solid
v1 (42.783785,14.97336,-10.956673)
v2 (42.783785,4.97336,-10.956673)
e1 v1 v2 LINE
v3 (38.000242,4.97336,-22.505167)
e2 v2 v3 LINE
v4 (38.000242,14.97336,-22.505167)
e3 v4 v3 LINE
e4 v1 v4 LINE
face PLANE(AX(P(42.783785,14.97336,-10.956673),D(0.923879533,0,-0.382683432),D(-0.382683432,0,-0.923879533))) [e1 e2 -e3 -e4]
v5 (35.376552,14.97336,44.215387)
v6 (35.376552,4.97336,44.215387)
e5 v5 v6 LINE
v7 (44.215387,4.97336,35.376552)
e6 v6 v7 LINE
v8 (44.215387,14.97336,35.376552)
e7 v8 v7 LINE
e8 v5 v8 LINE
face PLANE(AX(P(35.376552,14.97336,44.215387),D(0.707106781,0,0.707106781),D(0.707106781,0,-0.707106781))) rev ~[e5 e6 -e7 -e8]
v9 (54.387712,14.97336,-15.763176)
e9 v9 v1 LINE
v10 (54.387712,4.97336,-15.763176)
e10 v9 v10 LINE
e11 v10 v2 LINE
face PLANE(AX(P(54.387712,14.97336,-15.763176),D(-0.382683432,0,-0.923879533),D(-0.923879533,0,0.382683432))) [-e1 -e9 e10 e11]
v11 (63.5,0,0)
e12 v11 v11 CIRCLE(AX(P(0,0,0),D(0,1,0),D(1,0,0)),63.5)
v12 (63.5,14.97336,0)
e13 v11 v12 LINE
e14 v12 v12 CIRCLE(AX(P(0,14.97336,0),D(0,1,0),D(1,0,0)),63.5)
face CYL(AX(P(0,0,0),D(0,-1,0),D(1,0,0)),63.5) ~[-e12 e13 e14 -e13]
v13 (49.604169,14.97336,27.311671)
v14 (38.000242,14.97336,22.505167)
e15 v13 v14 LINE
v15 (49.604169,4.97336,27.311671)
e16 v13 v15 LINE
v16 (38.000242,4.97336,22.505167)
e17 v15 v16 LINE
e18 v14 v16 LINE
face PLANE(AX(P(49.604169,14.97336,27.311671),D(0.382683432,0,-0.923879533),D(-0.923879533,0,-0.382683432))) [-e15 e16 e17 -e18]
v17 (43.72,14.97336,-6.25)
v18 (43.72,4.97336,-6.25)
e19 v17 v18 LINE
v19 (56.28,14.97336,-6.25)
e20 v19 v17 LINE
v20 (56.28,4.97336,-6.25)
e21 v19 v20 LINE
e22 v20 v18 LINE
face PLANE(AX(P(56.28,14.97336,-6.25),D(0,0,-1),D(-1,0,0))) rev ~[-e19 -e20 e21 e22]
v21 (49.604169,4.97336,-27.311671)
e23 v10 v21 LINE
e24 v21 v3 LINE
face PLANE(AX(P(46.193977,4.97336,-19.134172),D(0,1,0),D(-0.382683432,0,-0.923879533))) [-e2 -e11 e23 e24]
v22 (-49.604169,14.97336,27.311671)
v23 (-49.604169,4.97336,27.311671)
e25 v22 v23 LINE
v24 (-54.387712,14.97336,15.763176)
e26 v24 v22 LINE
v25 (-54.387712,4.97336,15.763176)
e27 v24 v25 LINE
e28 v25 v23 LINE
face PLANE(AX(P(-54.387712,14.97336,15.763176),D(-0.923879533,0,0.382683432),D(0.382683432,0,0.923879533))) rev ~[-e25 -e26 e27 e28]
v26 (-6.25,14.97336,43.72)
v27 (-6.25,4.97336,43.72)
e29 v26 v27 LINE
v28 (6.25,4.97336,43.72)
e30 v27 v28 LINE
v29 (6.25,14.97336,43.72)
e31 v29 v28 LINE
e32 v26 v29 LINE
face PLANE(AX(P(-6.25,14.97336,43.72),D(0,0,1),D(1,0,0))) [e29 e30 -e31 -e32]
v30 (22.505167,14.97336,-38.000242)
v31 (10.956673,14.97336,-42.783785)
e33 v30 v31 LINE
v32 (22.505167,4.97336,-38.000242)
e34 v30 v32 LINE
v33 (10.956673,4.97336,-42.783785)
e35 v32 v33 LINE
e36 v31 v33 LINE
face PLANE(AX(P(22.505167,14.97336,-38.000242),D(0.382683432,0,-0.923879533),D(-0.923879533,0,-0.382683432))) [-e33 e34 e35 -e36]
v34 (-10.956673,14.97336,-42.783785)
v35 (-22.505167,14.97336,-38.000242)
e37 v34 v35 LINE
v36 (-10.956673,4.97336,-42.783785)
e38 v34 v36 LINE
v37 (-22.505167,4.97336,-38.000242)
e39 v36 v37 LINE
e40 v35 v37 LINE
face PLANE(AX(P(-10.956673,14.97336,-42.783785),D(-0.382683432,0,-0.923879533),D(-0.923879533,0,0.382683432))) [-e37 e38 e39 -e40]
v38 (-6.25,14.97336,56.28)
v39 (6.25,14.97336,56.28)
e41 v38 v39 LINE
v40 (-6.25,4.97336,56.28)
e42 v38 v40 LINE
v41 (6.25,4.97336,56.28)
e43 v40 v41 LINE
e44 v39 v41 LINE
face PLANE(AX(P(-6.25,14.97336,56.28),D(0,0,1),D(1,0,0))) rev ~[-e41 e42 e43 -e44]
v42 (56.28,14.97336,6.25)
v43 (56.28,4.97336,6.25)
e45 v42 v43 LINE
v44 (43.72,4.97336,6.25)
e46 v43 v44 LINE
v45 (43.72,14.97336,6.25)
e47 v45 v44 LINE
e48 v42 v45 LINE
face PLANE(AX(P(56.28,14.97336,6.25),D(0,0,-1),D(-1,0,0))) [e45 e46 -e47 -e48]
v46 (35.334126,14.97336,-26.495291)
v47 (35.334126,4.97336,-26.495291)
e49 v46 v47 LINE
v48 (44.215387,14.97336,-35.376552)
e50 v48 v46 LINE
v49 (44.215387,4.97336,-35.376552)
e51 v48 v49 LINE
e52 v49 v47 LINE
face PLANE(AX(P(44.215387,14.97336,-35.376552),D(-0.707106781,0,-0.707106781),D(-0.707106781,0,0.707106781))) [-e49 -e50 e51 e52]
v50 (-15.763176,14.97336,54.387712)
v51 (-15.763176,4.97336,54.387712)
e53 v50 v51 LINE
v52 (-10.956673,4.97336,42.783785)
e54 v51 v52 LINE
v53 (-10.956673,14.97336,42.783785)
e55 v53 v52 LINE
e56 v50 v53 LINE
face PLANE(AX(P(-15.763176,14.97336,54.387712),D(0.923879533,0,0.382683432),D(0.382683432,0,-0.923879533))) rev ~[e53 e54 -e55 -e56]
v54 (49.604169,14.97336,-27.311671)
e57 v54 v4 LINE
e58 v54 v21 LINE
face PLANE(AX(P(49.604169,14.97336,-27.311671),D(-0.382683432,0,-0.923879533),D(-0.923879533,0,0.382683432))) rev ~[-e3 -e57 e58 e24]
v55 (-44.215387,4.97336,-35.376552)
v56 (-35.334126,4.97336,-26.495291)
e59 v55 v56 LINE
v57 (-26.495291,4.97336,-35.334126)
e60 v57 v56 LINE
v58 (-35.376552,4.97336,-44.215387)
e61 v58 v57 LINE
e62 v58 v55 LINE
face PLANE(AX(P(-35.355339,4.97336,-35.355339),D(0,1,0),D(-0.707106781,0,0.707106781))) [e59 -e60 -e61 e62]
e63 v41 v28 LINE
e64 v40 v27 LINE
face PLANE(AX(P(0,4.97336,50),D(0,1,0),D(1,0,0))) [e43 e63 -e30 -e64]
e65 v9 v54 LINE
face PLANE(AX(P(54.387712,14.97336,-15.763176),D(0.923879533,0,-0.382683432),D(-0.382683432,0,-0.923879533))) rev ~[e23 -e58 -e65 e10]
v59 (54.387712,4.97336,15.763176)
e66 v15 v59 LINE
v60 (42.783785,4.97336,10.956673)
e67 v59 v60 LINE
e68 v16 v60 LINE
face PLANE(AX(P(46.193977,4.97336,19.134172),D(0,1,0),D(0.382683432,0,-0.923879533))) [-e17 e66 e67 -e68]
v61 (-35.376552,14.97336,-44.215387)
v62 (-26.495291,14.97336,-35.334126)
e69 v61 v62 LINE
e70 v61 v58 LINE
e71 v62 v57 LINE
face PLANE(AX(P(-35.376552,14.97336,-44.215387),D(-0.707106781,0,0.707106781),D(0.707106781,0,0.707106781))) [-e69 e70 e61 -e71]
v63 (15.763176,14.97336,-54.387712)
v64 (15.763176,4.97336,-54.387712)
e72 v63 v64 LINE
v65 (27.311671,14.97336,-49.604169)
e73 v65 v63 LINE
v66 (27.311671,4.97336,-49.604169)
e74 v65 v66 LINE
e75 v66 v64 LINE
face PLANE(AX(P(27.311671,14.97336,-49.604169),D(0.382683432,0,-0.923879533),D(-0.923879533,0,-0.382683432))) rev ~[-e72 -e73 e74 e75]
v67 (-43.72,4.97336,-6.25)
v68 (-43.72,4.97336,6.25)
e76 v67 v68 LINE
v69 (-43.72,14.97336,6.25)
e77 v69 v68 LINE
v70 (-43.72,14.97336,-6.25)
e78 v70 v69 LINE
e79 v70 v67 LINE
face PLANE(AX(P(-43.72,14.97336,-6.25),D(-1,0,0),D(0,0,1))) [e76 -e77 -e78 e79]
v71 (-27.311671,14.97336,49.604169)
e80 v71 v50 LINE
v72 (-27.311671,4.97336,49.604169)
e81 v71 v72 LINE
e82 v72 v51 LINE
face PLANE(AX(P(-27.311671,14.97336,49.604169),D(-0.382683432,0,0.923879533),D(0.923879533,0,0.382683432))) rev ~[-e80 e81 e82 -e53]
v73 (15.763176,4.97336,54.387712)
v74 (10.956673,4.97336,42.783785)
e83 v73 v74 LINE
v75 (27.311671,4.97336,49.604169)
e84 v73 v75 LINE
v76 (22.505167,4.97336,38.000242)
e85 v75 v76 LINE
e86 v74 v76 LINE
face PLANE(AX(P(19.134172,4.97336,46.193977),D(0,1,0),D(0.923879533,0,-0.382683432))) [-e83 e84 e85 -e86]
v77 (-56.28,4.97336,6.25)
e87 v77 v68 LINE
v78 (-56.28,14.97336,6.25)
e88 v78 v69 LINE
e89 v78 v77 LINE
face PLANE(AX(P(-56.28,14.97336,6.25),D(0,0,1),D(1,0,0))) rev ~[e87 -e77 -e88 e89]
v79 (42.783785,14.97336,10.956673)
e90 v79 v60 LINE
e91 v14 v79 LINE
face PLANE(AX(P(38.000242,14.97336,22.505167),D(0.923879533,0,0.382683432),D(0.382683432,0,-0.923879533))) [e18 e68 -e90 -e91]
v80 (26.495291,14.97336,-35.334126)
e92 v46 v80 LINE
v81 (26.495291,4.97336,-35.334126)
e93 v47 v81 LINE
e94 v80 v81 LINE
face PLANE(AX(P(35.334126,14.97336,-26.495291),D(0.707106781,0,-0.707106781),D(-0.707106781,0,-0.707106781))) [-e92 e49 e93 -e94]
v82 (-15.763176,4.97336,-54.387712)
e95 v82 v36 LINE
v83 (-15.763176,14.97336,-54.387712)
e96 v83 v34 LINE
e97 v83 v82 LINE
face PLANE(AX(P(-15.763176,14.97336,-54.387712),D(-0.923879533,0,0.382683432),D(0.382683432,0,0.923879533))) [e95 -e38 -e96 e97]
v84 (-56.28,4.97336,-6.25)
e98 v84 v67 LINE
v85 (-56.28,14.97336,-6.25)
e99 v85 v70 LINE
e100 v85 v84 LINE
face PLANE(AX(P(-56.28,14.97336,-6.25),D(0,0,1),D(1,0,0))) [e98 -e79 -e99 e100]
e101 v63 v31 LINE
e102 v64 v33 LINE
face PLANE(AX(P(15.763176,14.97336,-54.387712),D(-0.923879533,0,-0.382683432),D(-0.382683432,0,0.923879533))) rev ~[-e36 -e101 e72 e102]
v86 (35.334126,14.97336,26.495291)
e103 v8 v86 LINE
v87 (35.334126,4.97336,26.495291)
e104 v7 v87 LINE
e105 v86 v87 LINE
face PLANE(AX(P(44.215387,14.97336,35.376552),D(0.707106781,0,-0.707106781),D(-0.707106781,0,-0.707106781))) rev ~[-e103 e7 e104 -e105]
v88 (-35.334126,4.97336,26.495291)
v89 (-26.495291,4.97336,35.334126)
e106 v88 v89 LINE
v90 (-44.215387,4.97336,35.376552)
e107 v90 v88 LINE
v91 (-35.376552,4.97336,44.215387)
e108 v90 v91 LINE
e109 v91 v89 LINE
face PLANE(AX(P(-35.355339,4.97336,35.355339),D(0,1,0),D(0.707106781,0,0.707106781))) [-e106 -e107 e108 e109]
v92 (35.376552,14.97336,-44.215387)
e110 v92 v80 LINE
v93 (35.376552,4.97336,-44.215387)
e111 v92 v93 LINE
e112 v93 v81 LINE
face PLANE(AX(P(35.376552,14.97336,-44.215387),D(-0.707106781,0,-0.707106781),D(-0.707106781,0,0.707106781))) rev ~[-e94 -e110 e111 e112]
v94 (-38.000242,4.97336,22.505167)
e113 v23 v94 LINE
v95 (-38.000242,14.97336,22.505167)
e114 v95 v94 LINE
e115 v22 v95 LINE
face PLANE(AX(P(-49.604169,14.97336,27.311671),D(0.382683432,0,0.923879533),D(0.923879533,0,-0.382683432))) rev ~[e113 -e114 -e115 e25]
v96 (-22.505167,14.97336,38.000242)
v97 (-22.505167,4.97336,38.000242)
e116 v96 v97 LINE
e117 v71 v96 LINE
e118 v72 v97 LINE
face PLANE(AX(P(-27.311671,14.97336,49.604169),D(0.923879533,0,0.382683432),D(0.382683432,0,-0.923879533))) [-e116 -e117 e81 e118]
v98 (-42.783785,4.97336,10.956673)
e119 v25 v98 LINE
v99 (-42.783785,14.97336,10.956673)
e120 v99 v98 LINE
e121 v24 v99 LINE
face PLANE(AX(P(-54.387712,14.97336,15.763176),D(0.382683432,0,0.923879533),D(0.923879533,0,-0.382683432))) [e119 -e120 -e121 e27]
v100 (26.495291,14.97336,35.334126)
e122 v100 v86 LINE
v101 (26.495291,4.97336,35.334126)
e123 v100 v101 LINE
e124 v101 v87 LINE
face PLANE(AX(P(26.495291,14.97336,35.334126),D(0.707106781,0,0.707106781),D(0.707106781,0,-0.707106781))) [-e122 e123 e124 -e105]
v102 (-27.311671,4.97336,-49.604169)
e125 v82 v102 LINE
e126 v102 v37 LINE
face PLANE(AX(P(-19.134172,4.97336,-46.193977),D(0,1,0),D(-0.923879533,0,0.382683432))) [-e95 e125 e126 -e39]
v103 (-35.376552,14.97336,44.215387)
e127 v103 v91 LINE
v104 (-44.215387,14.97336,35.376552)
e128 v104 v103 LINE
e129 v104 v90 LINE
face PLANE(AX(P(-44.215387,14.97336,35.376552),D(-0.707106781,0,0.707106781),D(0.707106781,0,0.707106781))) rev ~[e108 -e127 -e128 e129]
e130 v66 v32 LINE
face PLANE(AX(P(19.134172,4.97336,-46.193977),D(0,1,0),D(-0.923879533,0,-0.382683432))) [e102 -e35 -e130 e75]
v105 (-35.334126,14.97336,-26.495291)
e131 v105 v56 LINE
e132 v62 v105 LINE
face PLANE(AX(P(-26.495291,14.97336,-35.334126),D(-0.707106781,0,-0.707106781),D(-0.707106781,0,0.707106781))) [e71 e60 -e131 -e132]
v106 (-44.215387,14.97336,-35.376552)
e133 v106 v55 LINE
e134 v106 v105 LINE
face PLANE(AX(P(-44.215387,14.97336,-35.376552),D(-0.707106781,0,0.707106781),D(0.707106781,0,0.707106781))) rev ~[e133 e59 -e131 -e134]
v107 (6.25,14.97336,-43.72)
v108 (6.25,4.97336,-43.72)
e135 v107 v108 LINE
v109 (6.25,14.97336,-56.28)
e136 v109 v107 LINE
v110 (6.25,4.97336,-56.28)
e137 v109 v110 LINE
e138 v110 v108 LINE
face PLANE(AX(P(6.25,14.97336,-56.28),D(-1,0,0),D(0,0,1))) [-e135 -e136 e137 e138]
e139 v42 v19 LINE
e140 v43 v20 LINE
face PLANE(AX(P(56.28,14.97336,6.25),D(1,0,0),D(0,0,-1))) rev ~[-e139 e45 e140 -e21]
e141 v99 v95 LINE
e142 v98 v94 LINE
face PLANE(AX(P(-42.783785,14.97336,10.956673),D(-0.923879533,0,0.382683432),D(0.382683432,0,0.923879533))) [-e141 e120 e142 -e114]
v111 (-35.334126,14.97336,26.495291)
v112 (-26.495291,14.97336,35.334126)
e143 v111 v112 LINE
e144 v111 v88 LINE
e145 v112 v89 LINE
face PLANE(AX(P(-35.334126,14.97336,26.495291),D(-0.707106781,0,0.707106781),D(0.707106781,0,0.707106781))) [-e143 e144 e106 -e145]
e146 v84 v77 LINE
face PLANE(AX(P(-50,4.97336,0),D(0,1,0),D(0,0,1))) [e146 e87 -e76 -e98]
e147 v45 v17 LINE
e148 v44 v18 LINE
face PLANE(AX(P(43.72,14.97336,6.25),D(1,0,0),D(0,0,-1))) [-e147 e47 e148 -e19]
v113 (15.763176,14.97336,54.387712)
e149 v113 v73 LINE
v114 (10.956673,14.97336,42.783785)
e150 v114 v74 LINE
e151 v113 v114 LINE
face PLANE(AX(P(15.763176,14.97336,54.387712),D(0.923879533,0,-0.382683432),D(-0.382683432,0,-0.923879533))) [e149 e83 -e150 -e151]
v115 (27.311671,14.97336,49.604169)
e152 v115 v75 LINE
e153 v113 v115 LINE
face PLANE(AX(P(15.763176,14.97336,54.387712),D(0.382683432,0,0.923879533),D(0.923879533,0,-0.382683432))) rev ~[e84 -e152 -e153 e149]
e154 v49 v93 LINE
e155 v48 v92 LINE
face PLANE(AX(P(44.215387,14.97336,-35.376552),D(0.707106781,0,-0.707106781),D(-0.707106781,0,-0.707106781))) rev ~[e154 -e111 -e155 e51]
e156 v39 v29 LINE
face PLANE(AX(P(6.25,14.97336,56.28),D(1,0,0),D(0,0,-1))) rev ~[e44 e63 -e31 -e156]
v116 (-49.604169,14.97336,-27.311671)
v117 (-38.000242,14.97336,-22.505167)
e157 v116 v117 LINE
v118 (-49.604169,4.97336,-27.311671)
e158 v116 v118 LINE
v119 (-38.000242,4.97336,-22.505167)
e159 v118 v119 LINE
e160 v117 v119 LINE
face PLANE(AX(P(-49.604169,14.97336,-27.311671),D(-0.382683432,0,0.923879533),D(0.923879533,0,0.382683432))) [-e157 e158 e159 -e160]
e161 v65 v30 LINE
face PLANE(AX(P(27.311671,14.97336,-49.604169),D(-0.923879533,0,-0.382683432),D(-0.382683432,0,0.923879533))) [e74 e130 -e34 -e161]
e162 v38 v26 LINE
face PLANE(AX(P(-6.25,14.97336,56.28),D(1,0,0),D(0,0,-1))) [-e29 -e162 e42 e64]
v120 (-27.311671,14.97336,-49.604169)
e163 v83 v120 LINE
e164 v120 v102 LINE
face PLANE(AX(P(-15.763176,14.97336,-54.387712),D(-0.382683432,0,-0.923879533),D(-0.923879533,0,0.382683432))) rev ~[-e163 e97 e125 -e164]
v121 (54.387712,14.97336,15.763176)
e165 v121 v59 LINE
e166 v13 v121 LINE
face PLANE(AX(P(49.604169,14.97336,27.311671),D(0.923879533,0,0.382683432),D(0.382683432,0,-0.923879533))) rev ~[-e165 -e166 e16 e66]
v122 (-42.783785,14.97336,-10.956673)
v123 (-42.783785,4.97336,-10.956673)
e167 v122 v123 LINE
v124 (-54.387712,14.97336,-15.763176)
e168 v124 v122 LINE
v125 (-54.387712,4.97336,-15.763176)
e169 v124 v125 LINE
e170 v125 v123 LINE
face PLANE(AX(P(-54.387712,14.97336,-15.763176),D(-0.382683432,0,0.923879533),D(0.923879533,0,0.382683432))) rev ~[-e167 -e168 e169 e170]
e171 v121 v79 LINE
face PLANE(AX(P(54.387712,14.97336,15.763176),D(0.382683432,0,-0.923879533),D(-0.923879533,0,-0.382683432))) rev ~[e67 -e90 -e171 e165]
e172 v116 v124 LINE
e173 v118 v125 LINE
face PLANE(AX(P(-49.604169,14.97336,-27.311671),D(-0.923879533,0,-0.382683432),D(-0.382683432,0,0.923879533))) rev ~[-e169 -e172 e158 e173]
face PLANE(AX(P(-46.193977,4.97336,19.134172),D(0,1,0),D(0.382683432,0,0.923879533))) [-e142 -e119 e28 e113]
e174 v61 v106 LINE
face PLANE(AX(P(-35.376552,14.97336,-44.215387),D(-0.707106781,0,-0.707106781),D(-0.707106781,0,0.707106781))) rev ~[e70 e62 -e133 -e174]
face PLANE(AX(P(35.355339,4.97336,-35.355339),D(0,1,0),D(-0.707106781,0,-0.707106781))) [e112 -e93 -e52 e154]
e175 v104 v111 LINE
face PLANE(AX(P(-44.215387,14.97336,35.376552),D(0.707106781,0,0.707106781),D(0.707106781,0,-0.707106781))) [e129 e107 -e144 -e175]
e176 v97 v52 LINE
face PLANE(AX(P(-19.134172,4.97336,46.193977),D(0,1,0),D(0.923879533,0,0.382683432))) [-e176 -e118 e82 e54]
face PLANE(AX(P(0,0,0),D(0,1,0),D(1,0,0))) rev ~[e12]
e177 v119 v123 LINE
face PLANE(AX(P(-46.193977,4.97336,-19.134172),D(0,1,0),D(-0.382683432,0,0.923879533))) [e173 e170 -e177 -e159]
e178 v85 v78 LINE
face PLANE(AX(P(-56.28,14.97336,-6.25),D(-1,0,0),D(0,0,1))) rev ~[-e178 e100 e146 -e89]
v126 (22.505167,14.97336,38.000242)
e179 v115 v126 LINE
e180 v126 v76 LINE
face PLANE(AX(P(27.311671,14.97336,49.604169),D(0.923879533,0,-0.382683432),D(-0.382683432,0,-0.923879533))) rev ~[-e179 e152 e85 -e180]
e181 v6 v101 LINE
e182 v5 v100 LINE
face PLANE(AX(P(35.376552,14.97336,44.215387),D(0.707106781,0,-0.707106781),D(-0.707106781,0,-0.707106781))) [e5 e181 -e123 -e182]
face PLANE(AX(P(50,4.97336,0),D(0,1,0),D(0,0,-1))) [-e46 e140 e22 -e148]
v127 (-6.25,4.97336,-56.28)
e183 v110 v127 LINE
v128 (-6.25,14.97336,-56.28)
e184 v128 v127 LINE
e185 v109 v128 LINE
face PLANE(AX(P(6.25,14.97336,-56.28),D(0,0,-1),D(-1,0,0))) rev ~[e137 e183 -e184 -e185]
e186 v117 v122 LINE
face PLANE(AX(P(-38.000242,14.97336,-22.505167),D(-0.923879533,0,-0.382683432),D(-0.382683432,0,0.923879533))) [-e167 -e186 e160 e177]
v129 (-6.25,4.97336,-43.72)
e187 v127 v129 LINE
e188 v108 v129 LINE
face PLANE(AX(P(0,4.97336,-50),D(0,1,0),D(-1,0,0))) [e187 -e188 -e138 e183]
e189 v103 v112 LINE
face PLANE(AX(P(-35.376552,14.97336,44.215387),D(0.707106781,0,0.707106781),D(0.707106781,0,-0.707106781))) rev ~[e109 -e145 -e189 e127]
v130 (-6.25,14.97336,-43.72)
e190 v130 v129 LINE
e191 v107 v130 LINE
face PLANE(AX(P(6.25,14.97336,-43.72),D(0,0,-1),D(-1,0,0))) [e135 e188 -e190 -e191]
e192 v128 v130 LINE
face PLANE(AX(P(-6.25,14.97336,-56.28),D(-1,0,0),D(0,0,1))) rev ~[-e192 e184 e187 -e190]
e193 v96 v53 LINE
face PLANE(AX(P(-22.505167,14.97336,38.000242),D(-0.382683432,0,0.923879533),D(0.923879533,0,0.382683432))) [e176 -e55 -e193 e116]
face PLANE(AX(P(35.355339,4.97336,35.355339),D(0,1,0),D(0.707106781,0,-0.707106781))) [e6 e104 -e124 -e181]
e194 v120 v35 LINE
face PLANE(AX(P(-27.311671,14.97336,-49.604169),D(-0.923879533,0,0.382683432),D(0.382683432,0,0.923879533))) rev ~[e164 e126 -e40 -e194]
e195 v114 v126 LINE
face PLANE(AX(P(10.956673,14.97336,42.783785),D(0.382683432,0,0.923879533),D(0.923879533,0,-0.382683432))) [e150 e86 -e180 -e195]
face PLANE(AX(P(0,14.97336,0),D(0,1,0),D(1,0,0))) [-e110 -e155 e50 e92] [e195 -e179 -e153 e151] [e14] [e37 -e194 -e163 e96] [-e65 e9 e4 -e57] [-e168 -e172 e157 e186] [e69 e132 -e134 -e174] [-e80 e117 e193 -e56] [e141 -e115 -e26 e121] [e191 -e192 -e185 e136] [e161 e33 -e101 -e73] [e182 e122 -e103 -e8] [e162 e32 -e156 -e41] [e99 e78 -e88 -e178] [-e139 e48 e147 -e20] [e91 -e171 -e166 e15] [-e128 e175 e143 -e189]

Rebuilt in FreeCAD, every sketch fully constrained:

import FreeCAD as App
import Part
import Sketcher


def add_polygon(sketch, points):
    """Adds a closed chain of lines whose ends are joined by coincident constraints."""
    first, n = sketch.GeometryCount, len(points)
    for a, b in zip(points, points[1:] + points[:1]):
        sketch.addGeometry(Part.LineSegment(App.Vector(*a, 0), App.Vector(*b, 0)), False)
    for i in range(n):
        sketch.addConstraint(Sketcher.Constraint("Coincident", first + i, 2, first + (i + 1) % n, 1))

doc = App.newDocument("Part")
body = doc.addObject("PartDesign::Body", "Body")

# Sketch on XZ plane
sketch1 = body.newObject("Sketcher::SketchObject", "Sketch")
sketch1.AttachmentSupport = (doc.getObject("XZ_Plane"), [""])
sketch1.MapMode = "FlatFace"
sketch1.addGeometry(Part.Circle(App.Vector(0, 0, 0), App.Vector(0, 0, 1), 64), False)
sketch1.addConstraint([
    Sketcher.Constraint("Coincident", 0, 3, -1, 1),
    Sketcher.Constraint("Diameter", 0, 127.0),
])
pad1 = body.newObject("PartDesign::Pad", "Pad")
pad1.Profile = sketch1
pad1.Length = 14.97336
pad1.Reversed = True

# Sketch on XZ plane
sketch2 = body.newObject("Sketcher::SketchObject", "Sketch001")
sketch2.AttachmentSupport = (doc.getObject("XZ_Plane"), [""])
sketch2.MapMode = "FlatFace"
sketch2.AttachmentOffset = App.Placement(App.Vector(0, 0, -14.97336), App.Rotation())
add_polygon(sketch2, [(-6, 44), (-6, 56), (6, 56), (6, 44)])  # lines 0-3
sketch2.addConstraint([
    Sketcher.Constraint("Vertical", 0),
    Sketcher.Constraint("Horizontal", 1),
    Sketcher.Constraint("Vertical", 2),
    Sketcher.Constraint("Horizontal", 3),
    Sketcher.Constraint("DistanceX", 1, 1, 1, 2, 12.5),
    Sketcher.Constraint("DistanceY", 0, 1, 0, 2, 12.56),
    Sketcher.Constraint("DistanceX", 0, 2, -1, 1, 6.25),
    Sketcher.Constraint("DistanceY", -1, 1, 0, 2, 56.28),
])
pocket1 = body.newObject("PartDesign::Pocket", "Pocket")
pocket1.Profile = sketch2
pocket1.Length = 10
pocket1.Reversed = True
doc.recompute()

polarpattern = body.newObject("PartDesign::PolarPattern", "PolarPattern")
polarpattern.Originals = [pocket1]
polarpattern.Axis = (doc.getObject("Y_Axis"), [""])
polarpattern.Angle = 360
polarpattern.Occurrences = 16
body.Tip = polarpattern

doc.recompute()
